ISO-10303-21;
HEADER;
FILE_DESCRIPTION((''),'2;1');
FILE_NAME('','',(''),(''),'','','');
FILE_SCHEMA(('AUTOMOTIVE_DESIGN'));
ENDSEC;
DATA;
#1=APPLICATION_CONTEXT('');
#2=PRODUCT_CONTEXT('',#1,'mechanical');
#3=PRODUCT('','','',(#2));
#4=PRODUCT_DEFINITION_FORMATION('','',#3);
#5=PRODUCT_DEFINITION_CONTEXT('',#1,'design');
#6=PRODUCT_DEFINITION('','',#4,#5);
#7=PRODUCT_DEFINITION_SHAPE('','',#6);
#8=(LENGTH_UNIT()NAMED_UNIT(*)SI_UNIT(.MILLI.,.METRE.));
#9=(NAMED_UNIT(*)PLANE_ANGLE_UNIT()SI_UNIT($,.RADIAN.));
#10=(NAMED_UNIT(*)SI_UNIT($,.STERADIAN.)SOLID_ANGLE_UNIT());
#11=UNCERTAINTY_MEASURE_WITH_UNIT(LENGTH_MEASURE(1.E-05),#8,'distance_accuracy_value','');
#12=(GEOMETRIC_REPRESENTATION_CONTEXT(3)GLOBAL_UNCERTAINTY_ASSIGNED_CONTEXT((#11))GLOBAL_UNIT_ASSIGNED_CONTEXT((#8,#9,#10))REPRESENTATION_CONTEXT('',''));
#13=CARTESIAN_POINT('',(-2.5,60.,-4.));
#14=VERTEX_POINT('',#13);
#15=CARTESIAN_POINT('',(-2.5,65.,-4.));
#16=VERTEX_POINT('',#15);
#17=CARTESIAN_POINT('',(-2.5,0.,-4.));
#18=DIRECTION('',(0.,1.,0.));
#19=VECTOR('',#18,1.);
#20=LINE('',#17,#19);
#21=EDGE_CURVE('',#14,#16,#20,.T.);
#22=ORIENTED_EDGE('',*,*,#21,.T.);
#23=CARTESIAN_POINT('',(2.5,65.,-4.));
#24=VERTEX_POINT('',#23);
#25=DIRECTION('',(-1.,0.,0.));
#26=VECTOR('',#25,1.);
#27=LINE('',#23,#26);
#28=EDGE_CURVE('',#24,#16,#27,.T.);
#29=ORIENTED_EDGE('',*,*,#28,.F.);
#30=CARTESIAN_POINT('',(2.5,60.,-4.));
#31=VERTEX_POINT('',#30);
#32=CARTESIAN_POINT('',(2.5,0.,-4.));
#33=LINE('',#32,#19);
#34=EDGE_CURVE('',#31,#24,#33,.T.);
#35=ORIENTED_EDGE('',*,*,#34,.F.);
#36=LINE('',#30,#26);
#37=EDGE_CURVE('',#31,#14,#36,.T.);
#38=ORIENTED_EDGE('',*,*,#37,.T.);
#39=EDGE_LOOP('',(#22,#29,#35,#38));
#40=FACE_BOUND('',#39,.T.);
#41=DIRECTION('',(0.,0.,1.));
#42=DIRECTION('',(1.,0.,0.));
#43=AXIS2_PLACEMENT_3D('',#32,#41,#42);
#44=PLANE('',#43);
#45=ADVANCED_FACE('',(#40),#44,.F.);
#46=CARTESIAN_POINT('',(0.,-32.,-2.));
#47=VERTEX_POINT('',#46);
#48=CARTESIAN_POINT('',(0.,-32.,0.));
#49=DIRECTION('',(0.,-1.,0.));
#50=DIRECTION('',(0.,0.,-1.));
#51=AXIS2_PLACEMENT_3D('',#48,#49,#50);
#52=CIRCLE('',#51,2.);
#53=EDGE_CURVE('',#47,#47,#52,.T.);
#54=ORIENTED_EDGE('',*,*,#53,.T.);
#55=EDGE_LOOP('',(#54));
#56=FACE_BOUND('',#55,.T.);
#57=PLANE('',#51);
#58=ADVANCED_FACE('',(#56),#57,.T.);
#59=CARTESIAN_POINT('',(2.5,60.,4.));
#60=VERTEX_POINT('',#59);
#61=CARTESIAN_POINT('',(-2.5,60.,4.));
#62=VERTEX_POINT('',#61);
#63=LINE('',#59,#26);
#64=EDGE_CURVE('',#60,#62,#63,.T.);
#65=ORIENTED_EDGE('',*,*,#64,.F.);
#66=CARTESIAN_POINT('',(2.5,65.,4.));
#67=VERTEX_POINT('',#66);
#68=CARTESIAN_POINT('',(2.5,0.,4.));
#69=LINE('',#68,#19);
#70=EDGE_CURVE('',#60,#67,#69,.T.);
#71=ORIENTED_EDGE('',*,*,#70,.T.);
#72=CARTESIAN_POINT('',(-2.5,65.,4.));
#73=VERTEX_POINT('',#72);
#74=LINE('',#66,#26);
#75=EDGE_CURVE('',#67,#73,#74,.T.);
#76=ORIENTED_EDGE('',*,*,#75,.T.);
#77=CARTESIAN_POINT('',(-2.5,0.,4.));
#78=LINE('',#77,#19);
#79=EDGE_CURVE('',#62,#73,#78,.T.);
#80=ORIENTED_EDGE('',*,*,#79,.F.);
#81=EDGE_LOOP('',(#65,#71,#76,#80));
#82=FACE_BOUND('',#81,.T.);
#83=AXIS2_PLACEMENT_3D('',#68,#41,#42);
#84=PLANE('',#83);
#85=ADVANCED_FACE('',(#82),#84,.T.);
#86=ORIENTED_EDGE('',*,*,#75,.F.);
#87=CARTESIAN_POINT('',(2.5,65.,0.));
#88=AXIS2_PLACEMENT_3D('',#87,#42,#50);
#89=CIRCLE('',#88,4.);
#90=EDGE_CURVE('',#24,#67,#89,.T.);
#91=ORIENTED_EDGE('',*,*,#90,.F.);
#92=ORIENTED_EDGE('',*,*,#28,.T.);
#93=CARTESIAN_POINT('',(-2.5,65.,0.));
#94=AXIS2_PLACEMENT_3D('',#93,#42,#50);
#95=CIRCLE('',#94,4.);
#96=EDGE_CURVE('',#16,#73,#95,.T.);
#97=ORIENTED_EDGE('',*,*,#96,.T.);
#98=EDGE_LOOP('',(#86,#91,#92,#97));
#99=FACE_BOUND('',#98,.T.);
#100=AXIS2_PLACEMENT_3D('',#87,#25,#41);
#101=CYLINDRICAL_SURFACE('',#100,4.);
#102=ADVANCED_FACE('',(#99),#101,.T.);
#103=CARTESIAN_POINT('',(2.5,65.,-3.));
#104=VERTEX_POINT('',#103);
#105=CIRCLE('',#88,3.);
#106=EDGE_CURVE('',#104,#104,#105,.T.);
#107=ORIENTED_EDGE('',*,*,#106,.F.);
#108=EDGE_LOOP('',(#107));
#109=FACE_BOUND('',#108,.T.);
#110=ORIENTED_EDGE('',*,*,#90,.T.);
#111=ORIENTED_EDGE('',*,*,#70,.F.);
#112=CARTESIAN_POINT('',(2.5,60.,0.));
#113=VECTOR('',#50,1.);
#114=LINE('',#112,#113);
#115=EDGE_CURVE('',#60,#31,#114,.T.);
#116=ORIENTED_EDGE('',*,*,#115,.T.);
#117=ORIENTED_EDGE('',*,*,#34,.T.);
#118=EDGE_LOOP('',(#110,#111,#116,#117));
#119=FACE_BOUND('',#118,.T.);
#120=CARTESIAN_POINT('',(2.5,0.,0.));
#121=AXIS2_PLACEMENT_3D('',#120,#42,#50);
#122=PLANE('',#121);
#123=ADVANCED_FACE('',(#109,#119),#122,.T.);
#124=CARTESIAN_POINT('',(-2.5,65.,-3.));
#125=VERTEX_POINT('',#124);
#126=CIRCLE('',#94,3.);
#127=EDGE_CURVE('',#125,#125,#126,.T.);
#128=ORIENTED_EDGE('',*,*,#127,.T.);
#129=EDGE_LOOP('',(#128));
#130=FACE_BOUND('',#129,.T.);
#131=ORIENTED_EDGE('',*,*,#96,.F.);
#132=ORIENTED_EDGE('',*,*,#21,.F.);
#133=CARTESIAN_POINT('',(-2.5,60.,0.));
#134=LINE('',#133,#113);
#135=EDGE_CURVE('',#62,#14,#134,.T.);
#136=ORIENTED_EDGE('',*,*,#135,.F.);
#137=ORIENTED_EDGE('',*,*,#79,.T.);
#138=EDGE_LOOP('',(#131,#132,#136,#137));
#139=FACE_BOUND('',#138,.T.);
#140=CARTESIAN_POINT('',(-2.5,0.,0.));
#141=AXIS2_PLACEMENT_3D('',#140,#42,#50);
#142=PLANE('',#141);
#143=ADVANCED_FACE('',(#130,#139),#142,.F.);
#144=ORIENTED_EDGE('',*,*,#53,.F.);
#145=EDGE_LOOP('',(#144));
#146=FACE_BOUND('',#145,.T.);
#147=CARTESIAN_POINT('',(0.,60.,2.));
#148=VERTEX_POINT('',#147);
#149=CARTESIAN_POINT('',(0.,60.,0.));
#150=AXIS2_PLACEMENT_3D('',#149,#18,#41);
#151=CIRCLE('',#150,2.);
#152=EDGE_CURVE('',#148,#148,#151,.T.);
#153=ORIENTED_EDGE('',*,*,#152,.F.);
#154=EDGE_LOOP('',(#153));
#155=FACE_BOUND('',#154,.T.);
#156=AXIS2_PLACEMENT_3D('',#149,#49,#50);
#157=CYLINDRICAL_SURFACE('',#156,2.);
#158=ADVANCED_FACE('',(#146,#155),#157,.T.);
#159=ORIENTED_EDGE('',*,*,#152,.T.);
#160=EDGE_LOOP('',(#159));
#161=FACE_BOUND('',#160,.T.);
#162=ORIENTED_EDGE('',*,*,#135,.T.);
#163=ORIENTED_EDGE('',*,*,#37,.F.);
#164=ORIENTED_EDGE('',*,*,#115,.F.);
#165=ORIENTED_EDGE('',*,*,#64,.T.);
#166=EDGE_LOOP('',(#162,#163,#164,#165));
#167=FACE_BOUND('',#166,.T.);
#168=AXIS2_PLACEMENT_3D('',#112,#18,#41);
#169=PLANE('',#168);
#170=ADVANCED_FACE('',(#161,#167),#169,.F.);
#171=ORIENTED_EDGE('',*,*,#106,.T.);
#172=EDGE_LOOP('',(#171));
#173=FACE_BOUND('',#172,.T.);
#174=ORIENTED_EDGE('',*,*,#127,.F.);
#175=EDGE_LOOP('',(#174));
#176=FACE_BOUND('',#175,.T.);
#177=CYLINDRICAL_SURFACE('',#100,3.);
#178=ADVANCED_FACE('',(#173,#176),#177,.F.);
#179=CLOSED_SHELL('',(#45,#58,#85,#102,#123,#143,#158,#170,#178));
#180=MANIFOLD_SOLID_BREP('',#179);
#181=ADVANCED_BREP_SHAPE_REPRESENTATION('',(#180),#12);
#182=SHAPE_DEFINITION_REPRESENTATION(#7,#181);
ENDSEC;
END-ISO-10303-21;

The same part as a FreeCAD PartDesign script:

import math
import FreeCAD as App
import Part
import Sketcher

V = App.Vector

doc = App.newDocument("Part")
body = doc.addObject("PartDesign::Body", "Body")

# Sketch on XZ plane
sketch1 = body.newObject("Sketcher::SketchObject", "Sketch")
sketch1.AttachmentSupport = (doc.getObject("XZ_Plane"), [""])
sketch1.MapMode = "FlatFace"
sketch1.addGeometry(Part.Circle(V(0, 0, 0), V(0, 0, 1), 2), False)
sketch1.addConstraint(Sketcher.Constraint("Coincident", 0, 3, -1, 1))
sketch1.addConstraint(Sketcher.Constraint("Diameter", 0, 4.0))
pad1 = body.newObject("PartDesign::Pad", "Pad")
pad1.Profile = sketch1
pad1.Length = 60
pad1.Reversed = True

# Sketch on YZ plane
sketch2 = body.newObject("Sketcher::SketchObject", "Sketch001")
sketch2.AttachmentSupport = (doc.getObject("YZ_Plane"), [""])
sketch2.MapMode = "FlatFace"
sketch2.addGeometry(Part.LineSegment(V(65, 4, 0), V(60, 4, 0)), False)
sketch2.addGeometry(Part.LineSegment(V(60, 4, 0), V(60, -4, 0)), False)
sketch2.addGeometry(Part.LineSegment(V(60, -4, 0), V(65, -4, 0)), False)
sketch2.addGeometry(Part.ArcOfCircle(Part.Circle(V(65, 0, 0), V(0, 0, 1), 4), math.radians(-90), math.radians(90)), False)
sketch2.addGeometry(Part.Circle(V(65, 0, 0), V(0, 0, 1), 3), False)
sketch2.addConstraint(Sketcher.Constraint("Coincident", 0, 2, 1, 1))
sketch2.addConstraint(Sketcher.Constraint("Coincident", 1, 2, 2, 1))
sketch2.addConstraint(Sketcher.Constraint("Tangent", 2, 2, 3, 1))
sketch2.addConstraint(Sketcher.Constraint("Tangent", 3, 2, 0, 1))
sketch2.addConstraint(Sketcher.Constraint("Horizontal", 0))
sketch2.addConstraint(Sketcher.Constraint("Vertical", 1))
sketch2.addConstraint(Sketcher.Constraint("Horizontal", 2))
sketch2.addConstraint(Sketcher.Constraint("Coincident", 4, 3, 3, 3))
sketch2.addConstraint(Sketcher.Constraint("PointOnObject", 3, 3, -1))
sketch2.addConstraint(Sketcher.Constraint("Diameter", 4, 6.0))
sketch2.addConstraint(Sketcher.Constraint("Radius", 3, 4.0))
sketch2.addConstraint(Sketcher.Constraint("DistanceX", 0, 2, 0, 1, 5.0))
sketch2.addConstraint(Sketcher.Constraint("DistanceX", -1, 1, 3, 3, 65.0))
pad2 = body.newObject("PartDesign::Pad", "Pad001")
pad2.Profile = sketch2
pad2.Length = 5
pad2.Midplane = True

# Sketch on XZ plane
sketch3 = body.newObject("Sketcher::SketchObject", "Sketch002")
sketch3.AttachmentSupport = (doc.getObject("XZ_Plane"), [""])
sketch3.MapMode = "FlatFace"
sketch3.AttachmentOffset = App.Placement(V(0, 0, 15), App.Rotation())
sketch3.addGeometry(Part.Circle(V(0, 0, 0), V(0, 0, 1), 2), False)
sketch3.addConstraint(Sketcher.Constraint("Coincident", 0, 3, -1, 1))
sketch3.addConstraint(Sketcher.Constraint("Diameter", 0, 4.0))
pad3 = body.newObject("PartDesign::Pad", "Pad002")
pad3.Profile = sketch3
pad3.Length = 15
pad3.Reversed = True

# Sketch on XZ plane
sketch4 = body.newObject("Sketcher::SketchObject", "Sketch003")
sketch4.AttachmentSupport = (doc.getObject("XZ_Plane"), [""])
sketch4.MapMode = "FlatFace"
sketch4.AttachmentOffset = App.Placement(V(0, 0, 20), App.Rotation())
sketch4.addGeometry(Part.Circle(V(0, 0, 0), V(0, 0, 1), 2), False)
sketch4.addConstraint(Sketcher.Constraint("Coincident", 0, 3, -1, 1))
sketch4.addConstraint(Sketcher.Constraint("Diameter", 0, 4.0))
pad4 = body.newObject("PartDesign::Pad", "Pad003")
pad4.Profile = sketch4
pad4.Length = 5
pad4.Reversed = True

# Sketch on XZ plane
sketch5 = body.newObject("Sketcher::SketchObject", "Sketch004")
sketch5.AttachmentSupport = (doc.getObject("XZ_Plane"), [""])
sketch5.MapMode = "FlatFace"
sketch5.AttachmentOffset = App.Placement(V(0, 0, 32), App.Rotation())
sketch5.addGeometry(Part.Circle(V(0, 0, 0), V(0, 0, 1), 2), False)
sketch5.addConstraint(Sketcher.Constraint("Coincident", 0, 3, -1, 1))
sketch5.addConstraint(Sketcher.Constraint("Diameter", 0, 4.0))
pad5 = body.newObject("PartDesign::Pad", "Pad004")
pad5.Profile = sketch5
pad5.Length = 12
pad5.Reversed = True

doc.recompute()
